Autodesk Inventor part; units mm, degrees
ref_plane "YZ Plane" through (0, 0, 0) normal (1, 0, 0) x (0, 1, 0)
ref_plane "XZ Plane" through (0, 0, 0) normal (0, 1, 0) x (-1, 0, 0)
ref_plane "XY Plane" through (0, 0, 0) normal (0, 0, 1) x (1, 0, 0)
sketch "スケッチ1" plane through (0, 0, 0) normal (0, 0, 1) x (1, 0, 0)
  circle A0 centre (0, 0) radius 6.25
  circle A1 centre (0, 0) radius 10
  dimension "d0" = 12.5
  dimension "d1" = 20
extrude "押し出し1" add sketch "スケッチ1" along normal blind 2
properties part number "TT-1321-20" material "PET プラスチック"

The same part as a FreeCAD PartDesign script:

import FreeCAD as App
import Part
import Sketcher

doc = App.newDocument("Part")
params = doc.addObject("Spreadsheet::Sheet", "Params")
for row, (alias, value) in enumerate([
    ("sketch1_diameter", "20 mm"),
    ("sketch1_diameter2", "12.5 mm"),
    ("pad1_length", "2 mm"),
], start=1):
    params.set(f"A{row}", alias)
    params.set(f"B{row}", "=" + value)
    params.setAlias(f"B{row}", alias)

body = doc.addObject("PartDesign::Body", "Body")

sketch1 = body.newObject("Sketcher::SketchObject", "Sketch")
sketch1.AttachmentSupport = (doc.getObject("XY_Plane"), [""])
sketch1.MapMode = "FlatFace"
sketch1.addGeometry([
    Part.Circle(App.Vector(0, 0, 0), App.Vector(0, 0, 1), 10),
    Part.Circle(App.Vector(0, 0, 0), App.Vector(0, 0, 1), 6),
], False)
sketch1.addConstraint([
    Sketcher.Constraint("Coincident", 0, 3, -1, 1),
    Sketcher.Constraint("Coincident", 1, 3, -1, 1),
    Sketcher.Constraint("Diameter", 0, 20.0),
    Sketcher.Constraint("Diameter", 1, 12.5),
])
sketch1.setExpression("Constraints[2]", "Params.sketch1_diameter")
sketch1.setExpression("Constraints[3]", "Params.sketch1_diameter2")
pad1 = body.newObject("PartDesign::Pad", "Pad")
pad1.Profile = sketch1
pad1.setExpression("Length", "Params.pad1_length")

doc.recompute()
